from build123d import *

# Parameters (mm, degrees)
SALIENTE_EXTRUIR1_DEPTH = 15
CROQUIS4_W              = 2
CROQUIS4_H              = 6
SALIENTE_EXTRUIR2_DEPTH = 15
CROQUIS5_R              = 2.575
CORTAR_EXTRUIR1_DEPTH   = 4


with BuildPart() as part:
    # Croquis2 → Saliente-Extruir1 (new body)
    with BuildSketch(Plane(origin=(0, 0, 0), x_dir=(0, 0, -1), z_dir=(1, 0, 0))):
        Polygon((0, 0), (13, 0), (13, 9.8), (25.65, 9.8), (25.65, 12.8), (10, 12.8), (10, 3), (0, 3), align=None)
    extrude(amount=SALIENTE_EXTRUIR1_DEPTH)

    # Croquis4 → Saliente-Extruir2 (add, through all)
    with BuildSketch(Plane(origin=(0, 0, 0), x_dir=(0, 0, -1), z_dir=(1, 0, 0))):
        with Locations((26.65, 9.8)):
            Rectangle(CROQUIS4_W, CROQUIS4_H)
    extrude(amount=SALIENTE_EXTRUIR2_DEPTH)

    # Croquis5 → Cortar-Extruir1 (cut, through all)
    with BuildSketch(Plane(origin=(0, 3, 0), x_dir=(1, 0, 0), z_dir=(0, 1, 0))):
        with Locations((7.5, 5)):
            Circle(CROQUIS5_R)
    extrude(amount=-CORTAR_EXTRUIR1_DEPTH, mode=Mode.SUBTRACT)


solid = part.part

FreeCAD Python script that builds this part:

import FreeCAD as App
import Part
import Sketcher
Q = App.Units.Quantity


def add_polygon(sketch, points):
    """Adds a closed chain of lines whose ends are joined by coincident constraints."""
    first, n = sketch.GeometryCount, len(points)
    for a, b in zip(points, points[1:] + points[:1]):
        sketch.addGeometry(Part.LineSegment(App.Vector(*a, 0), App.Vector(*b, 0)), False)
    for i in range(n):
        sketch.addConstraint(Sketcher.Constraint("Coincident", first + i, 2, first + (i + 1) % n, 1))

doc = App.newDocument("Part")
body = doc.addObject("PartDesign::Body", "Body")

# Sketch on YZ plane
sketch1 = body.newObject("Sketcher::SketchObject", "Sketch")
sketch1.AttachmentSupport = (doc.getObject("YZ_Plane"), [""])
sketch1.MapMode = "FlatFace"
add_polygon(sketch1, [(0, 0), (0, -13), (9.8, -13), (9.8, -25.6), (12.8, -25.6), (12.8, -10), (3, -10), (3, 0)])  # lines 0-7
sketch1.addConstraint([
    Sketcher.Constraint("Vertical", 0),
    Sketcher.Constraint("Horizontal", 1),
    Sketcher.Constraint("Vertical", 2),
    Sketcher.Constraint("Horizontal", 3),
    Sketcher.Constraint("Vertical", 4),
    Sketcher.Constraint("Horizontal", 5),
    Sketcher.Constraint("Vertical", 6),
    Sketcher.Constraint("Horizontal", 7),
    Sketcher.Constraint("Coincident", 7, 2, -1, 1),
    Sketcher.Constraint("Equal", 1, 5),
    Sketcher.Constraint("DistanceX", 3, 1, 3, 2, Q("3 mm")),
    Sketcher.Constraint("DistanceY", 0, 2, 0, 1, Q("13 mm")),
    Sketcher.Constraint("DistanceY", 6, 1, 6, 2, Q("10 mm")),
    Sketcher.Constraint("DistanceX", 1, 1, 1, 2, Q("9.8 mm")),
    Sketcher.Constraint("DistanceY", 2, 2, 2, 1, Q("12.65 mm")),
])
pad1 = body.newObject("PartDesign::Pad", "Pad")
pad1.Profile = sketch1
pad1.Length = 15

# Sketch on YZ plane
sketch2 = body.newObject("Sketcher::SketchObject", "Sketch001")
sketch2.AttachmentSupport = (doc.getObject("YZ_Plane"), [""])
sketch2.MapMode = "FlatFace"
add_polygon(sketch2, [(12.8, -25.6), (6.8, -25.6), (6.8, -27.6), (12.8, -27.6)])  # lines 0-3
sketch2.addConstraint([
    Sketcher.Constraint("Horizontal", 0),
    Sketcher.Constraint("Vertical", 1),
    Sketcher.Constraint("Horizontal", 2),
    Sketcher.Constraint("Vertical", 3),
    Sketcher.Constraint("DistanceX", 0, 2, 0, 1, Q("6 mm")),
    Sketcher.Constraint("DistanceY", 1, 2, 1, 1, Q("2 mm")),
    Sketcher.Constraint("DistanceX", -1, 1, 0, 2, Q("6.8 mm")),
    Sketcher.Constraint("DistanceY", 0, 2, -1, 1, Q("25.65 mm")),
])
pad2 = body.newObject("PartDesign::Pad", "Pad001")
pad2.Profile = sketch2
pad2.Length = 15

# Sketch on XZ plane
sketch3 = body.newObject("Sketcher::SketchObject", "Sketch002")
sketch3.AttachmentSupport = (doc.getObject("XZ_Plane"), [""])
sketch3.MapMode = "FlatFace"
sketch3.AttachmentOffset = App.Placement(App.Vector(0, 0, -3), App.Rotation())
sketch3.addGeometry(Part.Circle(App.Vector(7.5, -5, 0), App.Vector(0, 0, 1), 2.6), False)
sketch3.addConstraint([
    Sketcher.Constraint("Diameter", 0, Q("5.15 mm")),
    Sketcher.Constraint("DistanceY", 0, 3, -1, 1, Q("5 mm")),
    Sketcher.Constraint("DistanceX", -1, 1, 0, 3, Q("7.5 mm")),
])
pocket1 = body.newObject("PartDesign::Pocket", "Pocket")
pocket1.Profile = sketch3
pocket1.Type = "ThroughAll"
pocket1.Reversed = True

doc.recompute()
